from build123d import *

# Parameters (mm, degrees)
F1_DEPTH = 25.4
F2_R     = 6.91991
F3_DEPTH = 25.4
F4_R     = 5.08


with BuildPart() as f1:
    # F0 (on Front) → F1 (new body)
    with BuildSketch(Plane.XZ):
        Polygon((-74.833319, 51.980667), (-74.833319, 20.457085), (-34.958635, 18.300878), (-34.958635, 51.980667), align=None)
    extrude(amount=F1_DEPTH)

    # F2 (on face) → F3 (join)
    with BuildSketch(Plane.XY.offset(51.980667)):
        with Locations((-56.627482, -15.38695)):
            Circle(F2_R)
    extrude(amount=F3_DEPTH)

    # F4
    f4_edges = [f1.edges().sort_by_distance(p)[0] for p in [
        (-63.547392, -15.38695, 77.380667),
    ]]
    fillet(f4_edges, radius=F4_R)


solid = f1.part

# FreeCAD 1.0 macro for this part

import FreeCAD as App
import Part
import Sketcher


def edges_at(feature, points):
    """Names of the edges that pass closest to the given points."""
    edges = feature.Shape.Edges
    near = lambda p: min(range(len(edges)), key=lambda i: edges[i].distToShape(Part.Vertex(*p))[0])
    return sorted({f"Edge{near(p) + 1}" for p in points})

doc = App.newDocument("Part")
params = doc.addObject("Spreadsheet::Sheet", "Params")
for row, (alias, value) in enumerate([
    ("pad1_length", "1 in"),
    ("pad2_length", "1 in"),
    ("fillet_radius", "0.2 in"),
], start=1):
    params.set(f"A{row}", alias)
    params.set(f"B{row}", "=" + value)
    params.setAlias(f"B{row}", alias)

body = doc.addObject("PartDesign::Body", "Body")

sketch1 = doc.addObject("Sketcher::SketchObject", "Sketch")
body.addObject(sketch1)
sketch1.AttachmentSupport = (doc.XZ_Plane, [""])
sketch1.MapMode = "FlatFace"
sketch1.addGeometry([
    Part.LineSegment(App.Vector(-74.833319, 51.980667, 0), App.Vector(-74.833319, 20.457085, 0)),
    Part.LineSegment(App.Vector(-74.833319, 20.457085, 0), App.Vector(-34.958635, 18.300878, 0)),
    Part.LineSegment(App.Vector(-34.958635, 18.300878, 0), App.Vector(-34.958635, 51.980667, 0)),
    Part.LineSegment(App.Vector(-34.958635, 51.980667, 0), App.Vector(-74.833319, 51.980667, 0)),
], False)
sketch1.addConstraint([
    Sketcher.Constraint("Coincident", 0, 2, 1, 1),
    Sketcher.Constraint("Coincident", 1, 2, 2, 1),
    Sketcher.Constraint("Coincident", 2, 2, 3, 1),
    Sketcher.Constraint("Coincident", 3, 2, 0, 1),
    Sketcher.Constraint("Vertical", 0),
    Sketcher.Constraint("Vertical", 2),
    Sketcher.Constraint("Horizontal", 3),
    Sketcher.Constraint("DistanceY", 0, 2, 0, 1, 31.523582),
    Sketcher.Constraint("DistanceY", 2, 1, 2, 2, 33.679789),
    Sketcher.Constraint("Distance", 1, 39.932939),
    Sketcher.Constraint("DistanceX", 0, 2, -1, 1, 74.833319),
    Sketcher.Constraint("DistanceY", -1, 1, 1, 2, 18.300878),
])
pad1 = doc.addObject("PartDesign::Pad", "Pad")
body.addObject(pad1)
pad1.Profile = sketch1
pad1.setExpression("Length", "Params.pad1_length")

sketch2 = doc.addObject("Sketcher::SketchObject", "Sketch001")
body.addObject(sketch2)
sketch2.AttachmentSupport = (doc.XY_Plane, [""])
sketch2.MapMode = "FlatFace"
sketch2.AttachmentOffset = App.Placement(App.Vector(0, 0, 51.980667), App.Rotation())
sketch2.addGeometry(Part.Circle(App.Vector(-56.627482, -15.38695, 0), App.Vector(0, 0, 1), 6.91991), False)
sketch2.addConstraint([
    Sketcher.Constraint("Diameter", 0, 13.83982),
    Sketcher.Constraint("DistanceY", 0, 3, -1, 1, 15.38695),
    Sketcher.Constraint("DistanceX", 0, 3, -1, 1, 56.627482),
])
pad2 = doc.addObject("PartDesign::Pad", "Pad001")
body.addObject(pad2)
pad2.Profile = sketch2
pad2.setExpression("Length", "Params.pad2_length")
doc.recompute()

fillet = doc.addObject("PartDesign::Fillet", "Fillet")
body.addObject(fillet)
fillet.Base = (pad2, edges_at(pad2, [(-63.547, -15.387, 77.381)]))
fillet.setExpression("Radius", "Params.fillet_radius")

doc.recompute()
